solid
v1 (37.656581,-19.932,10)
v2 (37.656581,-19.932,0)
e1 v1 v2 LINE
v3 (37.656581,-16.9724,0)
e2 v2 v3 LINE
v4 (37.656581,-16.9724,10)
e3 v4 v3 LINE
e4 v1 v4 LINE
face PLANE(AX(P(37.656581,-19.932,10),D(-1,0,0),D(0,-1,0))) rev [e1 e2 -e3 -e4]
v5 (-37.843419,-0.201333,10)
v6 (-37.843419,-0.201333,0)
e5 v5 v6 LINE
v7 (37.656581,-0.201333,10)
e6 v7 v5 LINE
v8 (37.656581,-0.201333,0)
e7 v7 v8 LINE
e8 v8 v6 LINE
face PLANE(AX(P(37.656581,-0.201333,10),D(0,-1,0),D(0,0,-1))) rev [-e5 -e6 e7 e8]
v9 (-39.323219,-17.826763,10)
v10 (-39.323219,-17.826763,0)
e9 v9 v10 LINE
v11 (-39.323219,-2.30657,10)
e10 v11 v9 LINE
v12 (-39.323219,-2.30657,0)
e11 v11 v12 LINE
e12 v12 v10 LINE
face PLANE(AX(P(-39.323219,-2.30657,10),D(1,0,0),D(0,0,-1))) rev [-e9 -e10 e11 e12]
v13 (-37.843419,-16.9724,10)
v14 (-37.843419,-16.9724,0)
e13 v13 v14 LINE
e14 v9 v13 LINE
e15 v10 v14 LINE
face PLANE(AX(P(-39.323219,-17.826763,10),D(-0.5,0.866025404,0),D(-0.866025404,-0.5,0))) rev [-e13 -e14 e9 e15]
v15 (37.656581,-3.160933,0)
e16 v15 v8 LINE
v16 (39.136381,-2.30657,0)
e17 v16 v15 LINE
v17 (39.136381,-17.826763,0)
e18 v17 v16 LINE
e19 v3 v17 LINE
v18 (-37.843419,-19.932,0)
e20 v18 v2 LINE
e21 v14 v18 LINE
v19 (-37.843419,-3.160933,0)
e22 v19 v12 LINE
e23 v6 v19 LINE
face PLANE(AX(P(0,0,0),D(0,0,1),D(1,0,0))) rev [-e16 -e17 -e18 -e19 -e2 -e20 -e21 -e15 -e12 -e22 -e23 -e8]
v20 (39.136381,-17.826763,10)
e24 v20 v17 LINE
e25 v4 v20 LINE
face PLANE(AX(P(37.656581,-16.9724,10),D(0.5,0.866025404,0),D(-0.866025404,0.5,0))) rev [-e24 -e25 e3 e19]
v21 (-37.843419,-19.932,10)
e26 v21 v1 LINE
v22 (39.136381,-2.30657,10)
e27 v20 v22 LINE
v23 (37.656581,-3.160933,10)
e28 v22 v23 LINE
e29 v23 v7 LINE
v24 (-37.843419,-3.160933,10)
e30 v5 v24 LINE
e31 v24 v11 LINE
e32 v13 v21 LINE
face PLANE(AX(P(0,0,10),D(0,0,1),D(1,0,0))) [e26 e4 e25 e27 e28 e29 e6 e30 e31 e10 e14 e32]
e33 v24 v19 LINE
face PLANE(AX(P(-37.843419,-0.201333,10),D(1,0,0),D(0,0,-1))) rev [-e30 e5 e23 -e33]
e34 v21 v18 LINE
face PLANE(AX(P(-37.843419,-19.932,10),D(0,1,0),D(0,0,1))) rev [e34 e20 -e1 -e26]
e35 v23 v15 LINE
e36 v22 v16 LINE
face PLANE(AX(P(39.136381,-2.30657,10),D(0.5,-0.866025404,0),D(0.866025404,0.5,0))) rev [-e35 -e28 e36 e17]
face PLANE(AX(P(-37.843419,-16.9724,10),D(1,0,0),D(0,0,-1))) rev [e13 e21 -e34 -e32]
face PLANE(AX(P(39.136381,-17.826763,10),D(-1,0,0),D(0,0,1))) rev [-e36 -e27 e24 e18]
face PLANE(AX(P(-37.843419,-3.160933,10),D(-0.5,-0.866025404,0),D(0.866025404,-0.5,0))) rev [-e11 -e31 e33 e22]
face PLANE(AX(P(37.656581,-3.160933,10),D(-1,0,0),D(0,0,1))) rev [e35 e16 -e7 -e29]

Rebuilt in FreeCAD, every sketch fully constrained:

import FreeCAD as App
import Part
import Sketcher

V = App.Vector
Q = App.Units.Quantity


def add_polygon(sketch, points):
    """Adds a closed chain of lines whose ends are joined by coincident constraints."""
    first, n = sketch.GeometryCount, len(points)
    for a, b in zip(points, points[1:] + points[:1]):
        sketch.addGeometry(Part.LineSegment(App.Vector(*a, 0), App.Vector(*b, 0)), False)
    for i in range(n):
        sketch.addConstraint(Sketcher.Constraint("Coincident", first + i, 2, first + (i + 1) % n, 1))

doc = App.newDocument("Part")
params = doc.addObject("Spreadsheet::Sheet", "Params")
for row, (alias, value) in enumerate([
    ("sketch1_width", "75.5 mm"),
    ("pad1_length", "10 mm"),
], start=1):
    params.set(f"A{row}", alias)
    params.set(f"B{row}", "=" + value)
    params.setAlias(f"B{row}", alias)

body = doc.addObject("PartDesign::Body", "Body")

# Sketch on XY plane
sketch1 = body.newObject("Sketcher::SketchObject", "Sketch")
sketch1.AttachmentSupport = (doc.getObject("XY_Plane"), [""])
sketch1.MapMode = "FlatFace"
add_polygon(sketch1, [(-37.843419, -19.932), (37.656581, -19.932), (37.656581, -16.9724), (39.136381, -17.826763), (39.136381, -2.30657), (37.656581, -3.160933), (37.656581, -0.201333), (-37.843419, -0.201333), (-37.843419, -3.160933), (-39.323219, -2.30657), (-39.323219, -17.826763), (-37.843419, -16.9724)])  # lines 0-11
sketch1.addConstraint([
    Sketcher.Constraint("Horizontal", 0),
    Sketcher.Constraint("Vertical", 1),
    Sketcher.Constraint("Vertical", 3),
    Sketcher.Constraint("Vertical", 5),
    Sketcher.Constraint("Horizontal", 6),
    Sketcher.Constraint("Vertical", 7),
    Sketcher.Constraint("Vertical", 9),
    Sketcher.Constraint("Vertical", 11),
    Sketcher.Constraint("Parallel", 2, 8),
    Sketcher.Constraint("Parallel", 4, 10),
    Sketcher.Constraint("Horizontal", 4, 2, 7, 2),
    Sketcher.Constraint("Horizontal", 3, 2, 8, 2),
    Sketcher.Constraint("Horizontal", 2, 2, 9, 2),
    Sketcher.Constraint("Horizontal", 1, 2, 10, 2),
    Sketcher.Constraint("Vertical", 1, 2, 4, 2),
    Sketcher.Constraint("Vertical", 7, 2, 10, 2),
    Sketcher.Constraint("Equal", 1, 5),
    Sketcher.Constraint("Angle", 2, Q("-30 deg")),
    Sketcher.Constraint("DistanceX", 0, 1, 0, 2, Q("75.5 mm")),
    Sketcher.Constraint("DistanceY", 1, 1, 1, 2, Q("2.9596 mm")),
    Sketcher.Constraint("DistanceY", 0, 2, -1, 1, Q("19.932 mm")),
    Sketcher.Constraint("DistanceX", 1, 2, 2, 2, Q("1.4798 mm")),
    Sketcher.Constraint("DistanceY", 3, 1, 3, 2, Q("15.520193 mm")),
    Sketcher.Constraint("DistanceX", -1, 1, 0, 2, Q("37.656581 mm")),
])
sketch1.setExpression("Constraints[30]", "Params.sketch1_width")
pad1 = body.newObject("PartDesign::Pad", "Pad")
pad1.Profile = sketch1
pad1.setExpression("Length", "Params.pad1_length")

doc.recompute()
